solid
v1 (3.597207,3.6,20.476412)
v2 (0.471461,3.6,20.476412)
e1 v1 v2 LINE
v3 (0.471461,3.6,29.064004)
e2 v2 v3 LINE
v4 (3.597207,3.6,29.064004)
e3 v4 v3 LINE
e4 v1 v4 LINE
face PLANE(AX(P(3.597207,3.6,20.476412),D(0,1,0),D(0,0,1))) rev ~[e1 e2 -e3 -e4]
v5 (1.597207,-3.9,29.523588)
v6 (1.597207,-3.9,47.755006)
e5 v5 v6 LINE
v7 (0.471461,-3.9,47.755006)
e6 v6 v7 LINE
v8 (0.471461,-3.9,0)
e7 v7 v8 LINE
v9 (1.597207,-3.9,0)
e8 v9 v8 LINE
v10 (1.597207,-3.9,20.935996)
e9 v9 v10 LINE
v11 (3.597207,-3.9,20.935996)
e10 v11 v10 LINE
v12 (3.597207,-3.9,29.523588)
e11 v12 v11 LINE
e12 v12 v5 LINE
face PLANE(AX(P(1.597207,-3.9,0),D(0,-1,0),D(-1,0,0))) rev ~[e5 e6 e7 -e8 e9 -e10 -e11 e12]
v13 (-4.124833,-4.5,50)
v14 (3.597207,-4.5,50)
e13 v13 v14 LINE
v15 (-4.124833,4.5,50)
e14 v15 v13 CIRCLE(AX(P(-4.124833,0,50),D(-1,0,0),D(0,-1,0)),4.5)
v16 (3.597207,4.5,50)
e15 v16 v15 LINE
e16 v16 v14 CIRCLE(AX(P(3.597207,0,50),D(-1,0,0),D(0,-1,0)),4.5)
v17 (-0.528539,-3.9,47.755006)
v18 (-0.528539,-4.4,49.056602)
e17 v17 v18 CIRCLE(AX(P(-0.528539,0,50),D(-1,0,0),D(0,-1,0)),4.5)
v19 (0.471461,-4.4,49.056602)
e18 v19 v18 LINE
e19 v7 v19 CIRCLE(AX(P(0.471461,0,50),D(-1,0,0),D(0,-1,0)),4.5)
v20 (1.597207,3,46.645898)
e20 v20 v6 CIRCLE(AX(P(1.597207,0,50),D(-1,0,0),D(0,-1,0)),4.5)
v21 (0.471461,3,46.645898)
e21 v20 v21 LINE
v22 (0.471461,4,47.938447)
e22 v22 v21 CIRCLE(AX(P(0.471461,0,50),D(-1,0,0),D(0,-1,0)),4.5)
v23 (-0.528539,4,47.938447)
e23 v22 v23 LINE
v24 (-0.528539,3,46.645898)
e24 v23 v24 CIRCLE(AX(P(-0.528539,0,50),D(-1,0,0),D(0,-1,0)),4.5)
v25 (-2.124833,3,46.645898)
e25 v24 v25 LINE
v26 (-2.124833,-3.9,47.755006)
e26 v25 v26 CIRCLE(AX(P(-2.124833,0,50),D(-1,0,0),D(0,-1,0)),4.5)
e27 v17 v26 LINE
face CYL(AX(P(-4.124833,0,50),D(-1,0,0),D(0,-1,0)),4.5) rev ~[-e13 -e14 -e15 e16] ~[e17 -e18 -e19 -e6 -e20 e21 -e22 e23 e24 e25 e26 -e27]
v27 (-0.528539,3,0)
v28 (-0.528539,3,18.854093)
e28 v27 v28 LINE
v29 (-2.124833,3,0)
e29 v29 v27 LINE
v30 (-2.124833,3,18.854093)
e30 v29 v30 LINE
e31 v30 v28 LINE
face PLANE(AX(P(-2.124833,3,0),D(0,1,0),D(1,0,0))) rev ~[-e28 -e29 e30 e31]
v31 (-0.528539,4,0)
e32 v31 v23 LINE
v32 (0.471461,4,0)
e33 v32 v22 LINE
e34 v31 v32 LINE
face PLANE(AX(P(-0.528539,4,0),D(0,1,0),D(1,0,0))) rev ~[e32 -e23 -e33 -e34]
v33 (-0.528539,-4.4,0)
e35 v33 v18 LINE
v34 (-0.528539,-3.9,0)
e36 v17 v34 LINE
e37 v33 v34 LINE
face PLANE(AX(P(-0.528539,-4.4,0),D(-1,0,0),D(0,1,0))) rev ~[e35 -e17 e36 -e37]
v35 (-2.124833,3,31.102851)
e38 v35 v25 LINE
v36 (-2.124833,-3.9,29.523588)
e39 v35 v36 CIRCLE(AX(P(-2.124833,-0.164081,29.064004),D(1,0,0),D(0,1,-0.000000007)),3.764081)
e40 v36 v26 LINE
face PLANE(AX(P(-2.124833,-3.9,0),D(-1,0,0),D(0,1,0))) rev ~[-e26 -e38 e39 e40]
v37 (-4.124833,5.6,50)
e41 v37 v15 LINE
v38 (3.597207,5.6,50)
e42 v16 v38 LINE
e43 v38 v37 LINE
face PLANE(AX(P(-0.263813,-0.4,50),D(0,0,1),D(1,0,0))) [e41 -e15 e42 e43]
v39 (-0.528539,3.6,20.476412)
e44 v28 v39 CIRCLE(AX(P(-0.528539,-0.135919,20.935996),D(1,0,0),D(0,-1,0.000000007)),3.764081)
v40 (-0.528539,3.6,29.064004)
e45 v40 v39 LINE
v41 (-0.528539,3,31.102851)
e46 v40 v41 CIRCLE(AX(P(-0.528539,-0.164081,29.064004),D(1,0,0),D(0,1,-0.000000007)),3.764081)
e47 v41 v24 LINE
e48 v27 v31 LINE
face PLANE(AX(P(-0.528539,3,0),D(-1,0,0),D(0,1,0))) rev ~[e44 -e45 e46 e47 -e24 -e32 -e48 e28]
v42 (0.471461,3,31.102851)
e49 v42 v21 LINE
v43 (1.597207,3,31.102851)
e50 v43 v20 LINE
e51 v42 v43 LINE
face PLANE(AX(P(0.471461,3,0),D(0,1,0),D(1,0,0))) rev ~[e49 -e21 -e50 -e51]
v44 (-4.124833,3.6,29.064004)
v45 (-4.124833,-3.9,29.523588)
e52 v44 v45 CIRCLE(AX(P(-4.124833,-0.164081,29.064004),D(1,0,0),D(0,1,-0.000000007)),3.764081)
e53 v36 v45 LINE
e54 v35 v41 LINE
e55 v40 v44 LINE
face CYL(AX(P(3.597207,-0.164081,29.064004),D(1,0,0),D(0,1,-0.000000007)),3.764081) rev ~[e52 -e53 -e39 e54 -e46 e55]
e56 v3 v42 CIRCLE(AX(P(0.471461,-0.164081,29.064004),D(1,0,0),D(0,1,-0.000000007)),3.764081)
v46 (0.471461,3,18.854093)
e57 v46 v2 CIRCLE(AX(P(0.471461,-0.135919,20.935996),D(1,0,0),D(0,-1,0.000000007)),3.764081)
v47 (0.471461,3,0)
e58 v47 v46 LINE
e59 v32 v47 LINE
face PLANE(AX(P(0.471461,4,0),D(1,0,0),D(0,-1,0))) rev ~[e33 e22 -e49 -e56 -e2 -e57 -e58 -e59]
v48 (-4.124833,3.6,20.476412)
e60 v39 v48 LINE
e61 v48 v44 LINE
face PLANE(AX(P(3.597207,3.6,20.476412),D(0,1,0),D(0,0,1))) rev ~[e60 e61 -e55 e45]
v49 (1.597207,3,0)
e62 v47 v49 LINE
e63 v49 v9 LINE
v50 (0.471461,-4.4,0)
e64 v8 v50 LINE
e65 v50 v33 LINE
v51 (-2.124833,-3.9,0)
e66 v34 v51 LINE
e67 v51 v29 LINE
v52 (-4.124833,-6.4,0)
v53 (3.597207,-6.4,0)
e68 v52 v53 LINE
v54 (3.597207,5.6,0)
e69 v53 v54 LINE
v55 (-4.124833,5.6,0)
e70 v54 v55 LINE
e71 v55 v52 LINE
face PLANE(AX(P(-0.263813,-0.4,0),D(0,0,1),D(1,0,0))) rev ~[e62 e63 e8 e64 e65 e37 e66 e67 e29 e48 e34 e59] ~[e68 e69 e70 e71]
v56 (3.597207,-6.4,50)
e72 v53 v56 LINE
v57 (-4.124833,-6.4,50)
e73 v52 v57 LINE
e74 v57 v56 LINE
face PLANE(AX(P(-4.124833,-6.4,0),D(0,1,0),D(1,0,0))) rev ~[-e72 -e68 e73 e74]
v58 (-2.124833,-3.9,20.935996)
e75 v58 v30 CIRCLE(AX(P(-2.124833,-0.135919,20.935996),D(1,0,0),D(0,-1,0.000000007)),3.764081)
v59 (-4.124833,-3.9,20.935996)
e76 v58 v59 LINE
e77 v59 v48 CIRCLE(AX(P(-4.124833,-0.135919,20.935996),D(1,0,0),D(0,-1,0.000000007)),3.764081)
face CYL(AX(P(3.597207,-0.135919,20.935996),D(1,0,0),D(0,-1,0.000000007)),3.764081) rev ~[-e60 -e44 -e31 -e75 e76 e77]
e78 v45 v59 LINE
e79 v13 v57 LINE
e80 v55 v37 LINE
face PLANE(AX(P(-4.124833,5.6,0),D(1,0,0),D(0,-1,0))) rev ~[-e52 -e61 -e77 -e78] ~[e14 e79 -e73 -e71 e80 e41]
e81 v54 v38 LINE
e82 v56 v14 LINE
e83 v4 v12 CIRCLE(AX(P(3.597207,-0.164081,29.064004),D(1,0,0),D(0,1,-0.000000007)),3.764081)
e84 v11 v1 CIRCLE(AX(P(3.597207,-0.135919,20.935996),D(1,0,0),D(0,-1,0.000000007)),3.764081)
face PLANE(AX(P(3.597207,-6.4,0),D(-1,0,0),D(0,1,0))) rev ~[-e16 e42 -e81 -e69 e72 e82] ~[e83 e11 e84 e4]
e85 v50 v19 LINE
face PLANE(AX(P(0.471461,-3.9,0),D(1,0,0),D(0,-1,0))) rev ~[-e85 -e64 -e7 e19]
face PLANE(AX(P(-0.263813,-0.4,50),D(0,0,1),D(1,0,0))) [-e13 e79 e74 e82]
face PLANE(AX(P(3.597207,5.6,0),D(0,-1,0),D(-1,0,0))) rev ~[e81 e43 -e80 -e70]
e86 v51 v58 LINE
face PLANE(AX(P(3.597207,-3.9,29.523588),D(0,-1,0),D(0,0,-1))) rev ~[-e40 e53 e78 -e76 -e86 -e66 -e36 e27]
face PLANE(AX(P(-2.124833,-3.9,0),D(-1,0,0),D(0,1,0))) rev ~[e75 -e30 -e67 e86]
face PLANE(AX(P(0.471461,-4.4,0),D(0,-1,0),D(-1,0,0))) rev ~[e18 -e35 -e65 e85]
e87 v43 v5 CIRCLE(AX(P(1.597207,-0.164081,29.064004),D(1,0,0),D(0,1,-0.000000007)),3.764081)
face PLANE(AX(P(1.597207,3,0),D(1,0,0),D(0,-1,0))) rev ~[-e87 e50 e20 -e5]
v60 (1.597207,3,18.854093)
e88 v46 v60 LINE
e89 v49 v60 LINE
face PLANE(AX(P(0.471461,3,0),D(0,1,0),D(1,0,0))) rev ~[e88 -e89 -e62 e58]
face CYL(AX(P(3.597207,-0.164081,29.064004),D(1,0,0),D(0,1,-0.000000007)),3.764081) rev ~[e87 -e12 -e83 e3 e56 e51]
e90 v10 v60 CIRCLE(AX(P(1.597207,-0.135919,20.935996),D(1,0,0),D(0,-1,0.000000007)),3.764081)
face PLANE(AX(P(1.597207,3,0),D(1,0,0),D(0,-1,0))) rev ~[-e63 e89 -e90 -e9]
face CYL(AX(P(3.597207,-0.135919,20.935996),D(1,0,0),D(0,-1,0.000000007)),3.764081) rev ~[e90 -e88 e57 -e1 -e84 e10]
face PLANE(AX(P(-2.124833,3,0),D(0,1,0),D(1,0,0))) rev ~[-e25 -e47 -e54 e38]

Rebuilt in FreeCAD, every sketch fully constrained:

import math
import FreeCAD as App
import Part
import Sketcher
from FreeCAD import Vector


def add_polygon(sketch, points):
    """Adds a closed chain of lines whose ends are joined by coincident constraints."""
    first, n = sketch.GeometryCount, len(points)
    for a, b in zip(points, points[1:] + points[:1]):
        sketch.addGeometry(Part.LineSegment(App.Vector(*a, 0), App.Vector(*b, 0)), False)
    for i in range(n):
        sketch.addConstraint(Sketcher.Constraint("Coincident", first + i, 2, first + (i + 1) % n, 1))

doc = App.newDocument("Part")
params = doc.addObject("Spreadsheet::Sheet", "Params")
for row, (alias, value) in enumerate([
    ("sketch1_width", "1 mm"),
    ("sketch1_height", "12 mm"),
    ("sketch1_height2", "6.9 mm"),
    ("sketch1_height3", "0.5 mm"),
    ("pad1_length", "50 mm"),
    ("pocket1_length", "25 mm"),
    ("sketch3_diameter", "9 mm"),
    ("pocket2_length", "25 mm"),
], start=1):
    params.set(f"A{row}", alias)
    params.set(f"B{row}", "=" + value)
    params.setAlias(f"B{row}", alias)

body = doc.addObject("PartDesign::Body", "Body")

sketch1 = body.newObject("Sketcher::SketchObject", "Sketch")
sketch1.AttachmentSupport = (doc.getObject("XY_Plane"), [""])
sketch1.MapMode = "FlatFace"
add_polygon(sketch1, [(-4.1, 5.6), (-4.1, -6.4), (3.6, -6.4), (3.6, 5.6)])
add_polygon(sketch1, [(-2.1, 3), (-0.5, 3), (-0.5, 4), (0.5, 4), (0.5, 3), (1.6, 3), (1.6, -3.9), (0.5, -3.9), (0.5, -4.4), (-0.5, -4.4), (-0.5, -3.9), (-2.1, -3.9)])
sketch1.addConstraint([
    Sketcher.Constraint("Vertical", 0),
    Sketcher.Constraint("Horizontal", 1),
    Sketcher.Constraint("Vertical", 2),
    Sketcher.Constraint("Horizontal", 3),
    Sketcher.Constraint("Horizontal", 4),
    Sketcher.Constraint("Vertical", 5),
    Sketcher.Constraint("Horizontal", 6),
    Sketcher.Constraint("Vertical", 7),
    Sketcher.Constraint("Horizontal", 8),
    Sketcher.Constraint("Vertical", 9),
    Sketcher.Constraint("Horizontal", 10),
    Sketcher.Constraint("Vertical", 11),
    Sketcher.Constraint("Horizontal", 12),
    Sketcher.Constraint("Vertical", 13),
    Sketcher.Constraint("Horizontal", 14),
    Sketcher.Constraint("Vertical", 15),
    Sketcher.Constraint("Horizontal", 4, 2, 7, 2),
    Sketcher.Constraint("Horizontal", 10, 2, 13, 2),
    Sketcher.Constraint("Vertical", 7, 2, 10, 2),
    Sketcher.Constraint("Vertical", 5, 2, 12, 2),
    Sketcher.Constraint("Equal", 12, 5),
    Sketcher.Constraint("DistanceX", 6, 1, 6, 2, 1.0),
    Sketcher.Constraint("DistanceY", 0, 2, 0, 1, 12.0),
    Sketcher.Constraint("DistanceY", 9, 2, 9, 1, 6.9),
    Sketcher.Constraint("DistanceY", 11, 2, 11, 1, 0.5),
    Sketcher.Constraint("DistanceY", -1, 1, 4, 2, 3.0),
    Sketcher.Constraint("DistanceX", 8, 2, 2, 2, 2.0),
    Sketcher.Constraint("DistanceY", 1, 2, 11, 2, 2.0),
    Sketcher.Constraint("DistanceX", 0, 2, 14, 2, 2.0),
    Sketcher.Constraint("DistanceX", 1, 1, 1, 2, 7.72204),
    Sketcher.Constraint("DistanceX", 4, 1, 4, 2, 1.596294),
    Sketcher.Constraint("DistanceX", 4, 2, -1, 1, 0.528539),
])
sketch1.setExpression("Constraints[37]", "Params.sketch1_width")
sketch1.setExpression("Constraints[38]", "Params.sketch1_height")
sketch1.setExpression("Constraints[39]", "Params.sketch1_height2")
sketch1.setExpression("Constraints[40]", "Params.sketch1_height3")
pad1 = body.newObject("PartDesign::Pad", "Pad")
pad1.Profile = sketch1
pad1.setExpression("Length", "Params.pad1_length")

sketch2 = body.newObject("Sketcher::SketchObject", "Sketch001")
sketch2.AttachmentSupport = (doc.getObject("YZ_Plane"), [""])
sketch2.MapMode = "FlatFace"
sketch2.AttachmentOffset = App.Placement(Vector(0, 0, 3.597207), App.Rotation())
sketch2.addGeometry([
    Part.LineSegment(Vector(-3.9, 29.5, 0), Vector(-3.9, 20.9, 0)),
    Part.ArcOfCircle(Part.Circle(Vector(-0.1, 20.9, 0), Vector(0, 0, 1), 3.8), math.radians(180), math.radians(353)),
    Part.LineSegment(Vector(3.6, 20.5, 0), Vector(3.6, 29.1, 0)),
    Part.ArcOfCircle(Part.Circle(Vector(-0.2, 29.1, 0), Vector(0, 0, 1), 3.8), math.radians(0), math.radians(173)),
], False)
sketch2.addConstraint([
    Sketcher.Constraint("Tangent", 0, 2, 1, 1),
    Sketcher.Constraint("Coincident", 1, 2, 2, 1),
    Sketcher.Constraint("Tangent", 2, 2, 3, 1),
    Sketcher.Constraint("Coincident", 3, 2, 0, 1),
    Sketcher.Constraint("Vertical", 0),
    Sketcher.Constraint("Vertical", 2),
    Sketcher.Constraint("Equal", 1, 3),
    Sketcher.Constraint("DistanceX", 0, 2, -1, 1, 3.9),
    Sketcher.Constraint("DistanceX", -1, 1, 1, 2, 3.6),
    Sketcher.Constraint("Radius", 1, 3.764081),
    Sketcher.Constraint("DistanceY", 0, 2, 0, 1, 8.587592),
    Sketcher.Constraint("DistanceY", -1, 1, 1, 3, 20.935996),
])
pocket1 = body.newObject("PartDesign::Pocket", "Pocket")
pocket1.Profile = sketch2
pocket1.setExpression("Length", "Params.pocket1_length")

sketch3 = body.newObject("Sketcher::SketchObject", "Sketch002")
sketch3.AttachmentSupport = (doc.getObject("YZ_Plane"), [""])
sketch3.MapMode = "FlatFace"
sketch3.AttachmentOffset = App.Placement(Vector(0, 0, -4.124833), App.Rotation())
sketch3.addGeometry(Part.Circle(Vector(0, 50, 0), Vector(0, 0, 1), 4.5), False)
sketch3.addConstraint([
    Sketcher.Constraint("PointOnObject", 0, 3, -2),
    Sketcher.Constraint("Diameter", 0, 9.0),
    Sketcher.Constraint("DistanceY", -1, 1, 0, 3, 50.0),
])
sketch3.setExpression("Constraints[1]", "Params.sketch3_diameter")
pocket2 = body.newObject("PartDesign::Pocket", "Pocket001")
pocket2.Profile = sketch3
pocket2.setExpression("Length", "Params.pocket2_length")
pocket2.Reversed = True

doc.recompute()
